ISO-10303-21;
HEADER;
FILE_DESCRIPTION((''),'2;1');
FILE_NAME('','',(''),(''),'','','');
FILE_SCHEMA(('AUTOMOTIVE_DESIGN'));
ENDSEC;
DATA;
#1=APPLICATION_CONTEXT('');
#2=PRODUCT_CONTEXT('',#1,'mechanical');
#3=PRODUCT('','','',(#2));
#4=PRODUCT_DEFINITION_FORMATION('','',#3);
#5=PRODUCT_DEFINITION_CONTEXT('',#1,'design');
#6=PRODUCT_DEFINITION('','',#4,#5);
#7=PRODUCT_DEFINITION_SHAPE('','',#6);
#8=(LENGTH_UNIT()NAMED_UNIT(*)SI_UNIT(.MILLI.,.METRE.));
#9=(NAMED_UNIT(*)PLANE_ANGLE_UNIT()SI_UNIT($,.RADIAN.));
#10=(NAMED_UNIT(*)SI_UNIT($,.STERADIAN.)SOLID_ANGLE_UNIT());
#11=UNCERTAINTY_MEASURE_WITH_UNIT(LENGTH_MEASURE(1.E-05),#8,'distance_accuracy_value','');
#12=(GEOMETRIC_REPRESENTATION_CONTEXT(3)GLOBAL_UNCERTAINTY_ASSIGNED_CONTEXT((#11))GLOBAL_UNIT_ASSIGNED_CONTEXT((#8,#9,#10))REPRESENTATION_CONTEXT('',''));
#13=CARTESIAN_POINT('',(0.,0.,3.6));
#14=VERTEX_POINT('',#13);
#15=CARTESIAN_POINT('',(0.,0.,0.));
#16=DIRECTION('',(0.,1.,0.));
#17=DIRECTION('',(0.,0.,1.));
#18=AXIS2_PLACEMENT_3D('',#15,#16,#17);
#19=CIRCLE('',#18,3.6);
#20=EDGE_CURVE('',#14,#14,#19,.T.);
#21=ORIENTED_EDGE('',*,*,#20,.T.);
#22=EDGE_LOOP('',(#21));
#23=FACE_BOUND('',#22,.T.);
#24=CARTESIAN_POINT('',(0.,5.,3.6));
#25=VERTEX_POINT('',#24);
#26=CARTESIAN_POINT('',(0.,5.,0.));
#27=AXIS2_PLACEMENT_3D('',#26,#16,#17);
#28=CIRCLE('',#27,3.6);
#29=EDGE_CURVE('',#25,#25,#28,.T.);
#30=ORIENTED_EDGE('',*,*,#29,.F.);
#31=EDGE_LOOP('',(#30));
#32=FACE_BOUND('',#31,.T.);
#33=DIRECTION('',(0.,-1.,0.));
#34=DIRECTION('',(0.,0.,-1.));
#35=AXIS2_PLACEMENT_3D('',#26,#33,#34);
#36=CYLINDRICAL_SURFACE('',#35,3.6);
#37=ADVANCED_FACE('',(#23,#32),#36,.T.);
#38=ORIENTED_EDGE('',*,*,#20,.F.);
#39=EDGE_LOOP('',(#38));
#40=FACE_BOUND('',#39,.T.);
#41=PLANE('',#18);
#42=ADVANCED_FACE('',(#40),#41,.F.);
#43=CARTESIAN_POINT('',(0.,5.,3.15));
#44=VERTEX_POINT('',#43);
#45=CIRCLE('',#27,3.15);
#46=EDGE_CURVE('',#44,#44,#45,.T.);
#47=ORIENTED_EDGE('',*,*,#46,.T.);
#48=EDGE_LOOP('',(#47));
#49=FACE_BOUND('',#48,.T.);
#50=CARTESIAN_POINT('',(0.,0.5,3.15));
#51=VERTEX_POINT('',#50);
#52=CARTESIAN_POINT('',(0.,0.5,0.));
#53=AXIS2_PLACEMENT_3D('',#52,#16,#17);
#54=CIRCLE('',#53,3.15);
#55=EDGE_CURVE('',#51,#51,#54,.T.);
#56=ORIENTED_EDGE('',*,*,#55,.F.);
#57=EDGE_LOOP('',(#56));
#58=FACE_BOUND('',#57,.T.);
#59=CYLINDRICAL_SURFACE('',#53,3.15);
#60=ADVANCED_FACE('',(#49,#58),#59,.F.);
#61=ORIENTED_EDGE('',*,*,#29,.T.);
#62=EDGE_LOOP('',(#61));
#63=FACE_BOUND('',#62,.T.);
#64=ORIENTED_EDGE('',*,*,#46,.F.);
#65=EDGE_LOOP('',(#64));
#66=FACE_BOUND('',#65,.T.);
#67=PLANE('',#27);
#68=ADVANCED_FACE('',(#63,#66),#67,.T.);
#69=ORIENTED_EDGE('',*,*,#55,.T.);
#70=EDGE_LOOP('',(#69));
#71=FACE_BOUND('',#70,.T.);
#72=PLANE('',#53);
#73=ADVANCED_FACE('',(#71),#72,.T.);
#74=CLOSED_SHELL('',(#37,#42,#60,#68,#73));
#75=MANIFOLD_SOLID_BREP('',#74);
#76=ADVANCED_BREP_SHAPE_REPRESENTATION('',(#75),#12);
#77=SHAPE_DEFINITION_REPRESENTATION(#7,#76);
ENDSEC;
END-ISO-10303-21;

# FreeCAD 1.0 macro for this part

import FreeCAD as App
import Part
import Sketcher
Q = App.Units.Quantity

doc = App.newDocument("Part")
body = doc.addObject("PartDesign::Body", "Body")

sketch1 = body.newObject("Sketcher::SketchObject", "Sketch")
sketch1.AttachmentSupport = (doc.getObject("XZ_Plane"), [""])
sketch1.MapMode = "FlatFace"
sketch1.addGeometry(Part.Circle(App.Vector(0, 0, 0), App.Vector(0, 0, 1), 3.6), False)
sketch1.addConstraint(Sketcher.Constraint("Coincident", 0, 3, -1, 1))
sketch1.addConstraint(Sketcher.Constraint("Diameter", 0, Q("7.2 mm")))
pad1 = body.newObject("PartDesign::Pad", "Pad")
pad1.Profile = sketch1
pad1.Length = 5
pad1.Reversed = True

sketch2 = body.newObject("Sketcher::SketchObject", "Sketch001")
sketch2.AttachmentSupport = (doc.getObject("XZ_Plane"), [""])
sketch2.MapMode = "FlatFace"
sketch2.AttachmentOffset = App.Placement(App.Vector(0, 0, -5), App.Rotation())
sketch2.addGeometry(Part.Circle(App.Vector(0, 0, 0), App.Vector(0, 0, 1), 3.15), False)
sketch2.addConstraint(Sketcher.Constraint("Coincident", 0, 3, -1, 1))
sketch2.addConstraint(Sketcher.Constraint("Diameter", 0, Q("6.3 mm")))
pocket1 = body.newObject("PartDesign::Pocket", "Pocket")
pocket1.Profile = sketch2
pocket1.Length = 4.5
pocket1.Reversed = True

doc.recompute()
